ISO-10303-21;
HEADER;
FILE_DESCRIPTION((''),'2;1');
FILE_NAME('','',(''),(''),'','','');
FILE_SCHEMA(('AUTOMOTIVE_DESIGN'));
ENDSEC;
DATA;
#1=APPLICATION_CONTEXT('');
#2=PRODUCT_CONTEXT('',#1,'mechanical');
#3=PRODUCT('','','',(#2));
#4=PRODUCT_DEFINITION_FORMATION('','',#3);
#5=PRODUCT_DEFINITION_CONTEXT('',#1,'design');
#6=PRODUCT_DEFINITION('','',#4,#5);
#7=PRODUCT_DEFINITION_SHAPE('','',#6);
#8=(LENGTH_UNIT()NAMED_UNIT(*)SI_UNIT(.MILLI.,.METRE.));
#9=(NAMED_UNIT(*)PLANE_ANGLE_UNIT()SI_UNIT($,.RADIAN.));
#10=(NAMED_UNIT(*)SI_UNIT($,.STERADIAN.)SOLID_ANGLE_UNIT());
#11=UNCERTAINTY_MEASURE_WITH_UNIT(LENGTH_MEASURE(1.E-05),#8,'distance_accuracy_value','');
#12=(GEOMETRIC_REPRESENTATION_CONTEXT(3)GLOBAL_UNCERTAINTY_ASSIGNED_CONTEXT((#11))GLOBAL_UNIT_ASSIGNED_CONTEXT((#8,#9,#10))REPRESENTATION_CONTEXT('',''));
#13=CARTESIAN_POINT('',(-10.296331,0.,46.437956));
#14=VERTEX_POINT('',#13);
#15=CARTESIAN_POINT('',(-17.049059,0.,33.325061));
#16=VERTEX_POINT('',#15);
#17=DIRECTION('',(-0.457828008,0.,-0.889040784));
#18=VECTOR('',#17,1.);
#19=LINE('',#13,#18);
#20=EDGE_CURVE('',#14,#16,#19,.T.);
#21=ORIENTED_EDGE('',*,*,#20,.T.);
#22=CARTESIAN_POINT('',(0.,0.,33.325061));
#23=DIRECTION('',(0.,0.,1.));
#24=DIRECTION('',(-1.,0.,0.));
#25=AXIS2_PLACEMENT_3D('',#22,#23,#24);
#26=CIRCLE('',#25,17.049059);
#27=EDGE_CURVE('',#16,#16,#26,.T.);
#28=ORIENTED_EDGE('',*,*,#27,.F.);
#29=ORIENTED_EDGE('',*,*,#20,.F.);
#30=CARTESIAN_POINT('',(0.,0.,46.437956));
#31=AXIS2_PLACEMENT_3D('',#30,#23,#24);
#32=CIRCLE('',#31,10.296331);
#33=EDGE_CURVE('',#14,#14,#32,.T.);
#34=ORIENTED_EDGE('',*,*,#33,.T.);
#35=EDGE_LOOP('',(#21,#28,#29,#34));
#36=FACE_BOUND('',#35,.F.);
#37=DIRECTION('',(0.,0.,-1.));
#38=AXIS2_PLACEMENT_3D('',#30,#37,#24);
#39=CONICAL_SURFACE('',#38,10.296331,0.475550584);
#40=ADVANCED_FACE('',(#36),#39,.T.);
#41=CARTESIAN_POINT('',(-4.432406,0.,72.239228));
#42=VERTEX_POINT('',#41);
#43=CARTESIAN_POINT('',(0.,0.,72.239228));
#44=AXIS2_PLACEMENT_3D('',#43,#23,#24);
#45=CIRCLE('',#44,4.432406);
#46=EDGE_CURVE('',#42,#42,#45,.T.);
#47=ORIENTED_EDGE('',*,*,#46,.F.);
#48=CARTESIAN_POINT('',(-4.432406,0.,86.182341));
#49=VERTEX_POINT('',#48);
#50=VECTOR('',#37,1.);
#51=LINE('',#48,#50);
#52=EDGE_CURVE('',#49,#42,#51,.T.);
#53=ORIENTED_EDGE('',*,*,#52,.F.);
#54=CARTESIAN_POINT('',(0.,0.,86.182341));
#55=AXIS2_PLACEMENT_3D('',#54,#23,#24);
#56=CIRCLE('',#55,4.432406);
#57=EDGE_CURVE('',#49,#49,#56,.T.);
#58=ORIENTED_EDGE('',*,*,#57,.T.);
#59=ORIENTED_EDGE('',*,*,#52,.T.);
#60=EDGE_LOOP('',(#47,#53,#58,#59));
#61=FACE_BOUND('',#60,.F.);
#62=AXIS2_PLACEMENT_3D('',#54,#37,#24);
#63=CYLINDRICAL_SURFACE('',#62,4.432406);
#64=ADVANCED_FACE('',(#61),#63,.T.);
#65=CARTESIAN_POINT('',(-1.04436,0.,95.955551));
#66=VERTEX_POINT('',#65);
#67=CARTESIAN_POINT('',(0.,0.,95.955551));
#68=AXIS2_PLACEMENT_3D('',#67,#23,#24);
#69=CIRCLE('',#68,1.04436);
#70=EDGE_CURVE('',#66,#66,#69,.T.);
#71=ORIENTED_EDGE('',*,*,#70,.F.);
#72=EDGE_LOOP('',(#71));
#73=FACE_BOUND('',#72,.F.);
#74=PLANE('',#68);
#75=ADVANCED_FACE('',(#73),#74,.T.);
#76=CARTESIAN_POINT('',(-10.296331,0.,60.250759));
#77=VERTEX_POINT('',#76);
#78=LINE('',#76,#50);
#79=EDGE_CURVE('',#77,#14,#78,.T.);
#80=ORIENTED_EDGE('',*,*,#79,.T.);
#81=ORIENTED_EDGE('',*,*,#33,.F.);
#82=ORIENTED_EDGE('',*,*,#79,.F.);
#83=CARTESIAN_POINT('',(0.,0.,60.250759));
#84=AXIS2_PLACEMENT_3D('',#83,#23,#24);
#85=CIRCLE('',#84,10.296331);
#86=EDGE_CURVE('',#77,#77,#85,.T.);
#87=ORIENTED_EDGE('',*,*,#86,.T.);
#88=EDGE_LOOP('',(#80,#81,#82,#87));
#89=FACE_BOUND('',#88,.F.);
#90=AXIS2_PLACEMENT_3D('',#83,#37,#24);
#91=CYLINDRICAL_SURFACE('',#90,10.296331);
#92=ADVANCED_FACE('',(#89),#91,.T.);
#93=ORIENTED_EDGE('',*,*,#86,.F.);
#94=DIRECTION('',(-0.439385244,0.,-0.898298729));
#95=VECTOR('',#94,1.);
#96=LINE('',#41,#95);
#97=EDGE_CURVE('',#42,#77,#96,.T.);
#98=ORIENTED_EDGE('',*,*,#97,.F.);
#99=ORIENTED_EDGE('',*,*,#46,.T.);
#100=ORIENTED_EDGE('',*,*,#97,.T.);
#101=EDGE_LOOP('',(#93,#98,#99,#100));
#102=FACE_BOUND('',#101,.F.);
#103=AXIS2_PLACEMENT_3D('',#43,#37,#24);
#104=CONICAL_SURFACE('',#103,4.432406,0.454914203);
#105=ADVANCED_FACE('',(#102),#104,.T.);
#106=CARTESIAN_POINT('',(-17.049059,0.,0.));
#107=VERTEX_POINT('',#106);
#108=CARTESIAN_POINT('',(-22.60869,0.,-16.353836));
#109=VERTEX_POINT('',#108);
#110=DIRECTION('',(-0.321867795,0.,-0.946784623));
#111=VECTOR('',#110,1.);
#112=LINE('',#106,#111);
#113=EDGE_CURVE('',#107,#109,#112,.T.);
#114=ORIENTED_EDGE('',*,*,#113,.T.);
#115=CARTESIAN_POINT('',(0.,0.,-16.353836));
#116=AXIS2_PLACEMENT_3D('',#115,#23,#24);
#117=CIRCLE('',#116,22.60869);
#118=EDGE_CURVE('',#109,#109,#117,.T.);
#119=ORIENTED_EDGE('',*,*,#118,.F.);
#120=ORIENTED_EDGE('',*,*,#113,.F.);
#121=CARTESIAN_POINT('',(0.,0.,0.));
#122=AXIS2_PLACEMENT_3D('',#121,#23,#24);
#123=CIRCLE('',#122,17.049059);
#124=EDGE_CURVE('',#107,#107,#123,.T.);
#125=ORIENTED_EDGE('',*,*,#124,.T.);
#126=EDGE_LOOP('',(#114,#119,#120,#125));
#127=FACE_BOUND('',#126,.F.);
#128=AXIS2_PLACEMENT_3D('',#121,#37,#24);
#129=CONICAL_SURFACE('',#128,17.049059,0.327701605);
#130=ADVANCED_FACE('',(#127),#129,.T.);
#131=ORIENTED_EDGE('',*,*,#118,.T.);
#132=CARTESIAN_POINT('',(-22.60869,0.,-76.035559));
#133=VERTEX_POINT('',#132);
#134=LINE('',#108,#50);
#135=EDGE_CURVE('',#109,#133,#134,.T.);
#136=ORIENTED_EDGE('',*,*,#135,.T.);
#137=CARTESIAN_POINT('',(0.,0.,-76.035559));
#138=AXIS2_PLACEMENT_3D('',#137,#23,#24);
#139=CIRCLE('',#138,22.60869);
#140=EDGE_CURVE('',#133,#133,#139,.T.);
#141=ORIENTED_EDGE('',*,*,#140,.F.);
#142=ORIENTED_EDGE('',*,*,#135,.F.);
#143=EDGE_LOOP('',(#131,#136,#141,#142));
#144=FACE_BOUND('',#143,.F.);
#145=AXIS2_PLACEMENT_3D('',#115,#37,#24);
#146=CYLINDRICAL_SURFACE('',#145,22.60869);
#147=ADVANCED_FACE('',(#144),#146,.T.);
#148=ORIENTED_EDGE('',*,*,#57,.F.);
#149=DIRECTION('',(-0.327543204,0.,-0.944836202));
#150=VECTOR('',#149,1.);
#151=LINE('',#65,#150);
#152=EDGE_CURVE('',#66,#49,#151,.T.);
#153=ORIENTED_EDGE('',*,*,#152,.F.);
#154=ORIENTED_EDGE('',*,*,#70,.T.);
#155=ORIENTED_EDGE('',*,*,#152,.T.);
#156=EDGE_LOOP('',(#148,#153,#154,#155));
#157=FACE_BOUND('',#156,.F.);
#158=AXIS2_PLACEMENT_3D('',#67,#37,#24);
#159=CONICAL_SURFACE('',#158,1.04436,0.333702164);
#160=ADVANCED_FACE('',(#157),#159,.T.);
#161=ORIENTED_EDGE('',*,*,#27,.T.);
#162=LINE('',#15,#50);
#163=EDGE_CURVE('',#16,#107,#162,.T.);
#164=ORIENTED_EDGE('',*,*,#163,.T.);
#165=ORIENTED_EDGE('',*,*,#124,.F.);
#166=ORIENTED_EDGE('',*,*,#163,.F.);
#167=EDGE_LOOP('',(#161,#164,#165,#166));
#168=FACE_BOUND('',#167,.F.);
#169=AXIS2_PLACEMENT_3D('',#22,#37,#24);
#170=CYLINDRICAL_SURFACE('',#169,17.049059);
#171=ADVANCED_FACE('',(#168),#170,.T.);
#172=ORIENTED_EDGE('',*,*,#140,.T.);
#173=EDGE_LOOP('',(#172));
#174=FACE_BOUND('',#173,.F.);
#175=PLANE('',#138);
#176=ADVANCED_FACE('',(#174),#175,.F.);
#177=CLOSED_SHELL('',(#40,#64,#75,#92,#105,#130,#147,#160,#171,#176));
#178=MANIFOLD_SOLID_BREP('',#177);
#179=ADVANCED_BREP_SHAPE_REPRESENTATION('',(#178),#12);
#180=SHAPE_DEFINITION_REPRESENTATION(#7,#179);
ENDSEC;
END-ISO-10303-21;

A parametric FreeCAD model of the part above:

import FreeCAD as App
import Part
import Sketcher

V = App.Vector

doc = App.newDocument("Part")
params = doc.addObject("Spreadsheet::Sheet", "Params")
for row, (alias, value) in enumerate([
    ("revolution_angle", "360 deg"),
], start=1):
    params.set(f"A{row}", alias)
    params.set(f"B{row}", "=" + value)
    params.setAlias(f"B{row}", alias)

body = doc.addObject("PartDesign::Body", "Body")

# Sketch on XZ plane
sketch1 = doc.addObject("Sketcher::SketchObject", "Sketch")
body.addObject(sketch1)
sketch1.AttachmentSupport = (doc.XZ_Plane, [""])
sketch1.MapMode = "FlatFace"
sketch1.addGeometry([
    Part.LineSegment(V(-22.6, -16.4, 0), V(-22.6, -76, 0)),  # 0
    Part.LineSegment(V(-22.6, -76, 0), V(0, -76, 0)),  # 1
    Part.LineSegment(V(0, -76, 0), V(0, 96, 0)),  # 2
    Part.LineSegment(V(0, 96, 0), V(-1, 96, 0)),  # 3
    Part.LineSegment(V(-1, 96, 0), V(-4.4, 86.2, 0)),  # 4
    Part.LineSegment(V(-4.4, 86.2, 0), V(-4.4, 72.2, 0)),  # 5
    Part.LineSegment(V(-4.4, 72.2, 0), V(-10.3, 60.3, 0)),  # 6
    Part.LineSegment(V(-10.3, 60.3, 0), V(-10.3, 46.4, 0)),  # 7
    Part.LineSegment(V(-10.3, 46.4, 0), V(-17, 33.3, 0)),  # 8
    Part.LineSegment(V(-17, 33.3, 0), V(-17, 0, 0)),  # 9
    Part.LineSegment(V(-17, 0, 0), V(-22.6, -16.4, 0)),  # 10
], False)
sketch1.addConstraint([
    Sketcher.Constraint("Coincident", 0, 2, 1, 1),
    Sketcher.Constraint("Coincident", 1, 2, 2, 1),
    Sketcher.Constraint("Coincident", 2, 2, 3, 1),
    Sketcher.Constraint("Coincident", 3, 2, 4, 1),
    Sketcher.Constraint("Coincident", 4, 2, 5, 1),
    Sketcher.Constraint("Coincident", 5, 2, 6, 1),
    Sketcher.Constraint("Coincident", 6, 2, 7, 1),
    Sketcher.Constraint("Coincident", 7, 2, 8, 1),
    Sketcher.Constraint("Coincident", 8, 2, 9, 1),
    Sketcher.Constraint("Coincident", 9, 2, 10, 1),
    Sketcher.Constraint("Coincident", 10, 2, 0, 1),
    Sketcher.Constraint("Vertical", 0),
    Sketcher.Constraint("Horizontal", 1),
    Sketcher.Constraint("Vertical", 2),
    Sketcher.Constraint("Horizontal", 3),
    Sketcher.Constraint("Vertical", 5),
    Sketcher.Constraint("Vertical", 7),
    Sketcher.Constraint("Vertical", 9),
    Sketcher.Constraint("PointOnObject", 1, 2, -2),
    Sketcher.Constraint("PointOnObject", 9, 2, -1),
    Sketcher.Constraint("DistanceX", 1, 1, 1, 2, 22.60869),
    Sketcher.Constraint("DistanceX", 3, 2, 3, 1, 1.04436),
    Sketcher.Constraint("DistanceY", 2, 1, 2, 2, 171.99111),
    Sketcher.Constraint("DistanceY", 9, 2, 9, 1, 33.325061),
    Sketcher.Constraint("DistanceY", 1, 2, 4, 2, 162.2179),
    Sketcher.Constraint("DistanceY", 8, 2, 6, 2, 26.925698),
    Sketcher.Constraint("DistanceX", 8, 2, 3, 2, 16.004699),
    Sketcher.Constraint("Distance", 6, 13.345749),
    Sketcher.Constraint("DistanceY", 0, 2, 0, 1, 59.681723),
    Sketcher.Constraint("DistanceY", 5, 2, 5, 1, 13.943113),
    Sketcher.Constraint("DistanceY", 7, 2, 7, 1, 13.812803),
    Sketcher.Constraint("DistanceY", 0, 2, -1, 1, 76.035559),
    Sketcher.Constraint("DistanceX", 6, 2, -1, 1, 10.296331),
])
revolution = doc.addObject("PartDesign::Revolution", "Revolution")
body.addObject(revolution)
revolution.Profile = sketch1
revolution.ReferenceAxis = (sketch1, ["V_Axis"])
revolution.setExpression("Angle", "Params.revolution_angle")

doc.recompute()
